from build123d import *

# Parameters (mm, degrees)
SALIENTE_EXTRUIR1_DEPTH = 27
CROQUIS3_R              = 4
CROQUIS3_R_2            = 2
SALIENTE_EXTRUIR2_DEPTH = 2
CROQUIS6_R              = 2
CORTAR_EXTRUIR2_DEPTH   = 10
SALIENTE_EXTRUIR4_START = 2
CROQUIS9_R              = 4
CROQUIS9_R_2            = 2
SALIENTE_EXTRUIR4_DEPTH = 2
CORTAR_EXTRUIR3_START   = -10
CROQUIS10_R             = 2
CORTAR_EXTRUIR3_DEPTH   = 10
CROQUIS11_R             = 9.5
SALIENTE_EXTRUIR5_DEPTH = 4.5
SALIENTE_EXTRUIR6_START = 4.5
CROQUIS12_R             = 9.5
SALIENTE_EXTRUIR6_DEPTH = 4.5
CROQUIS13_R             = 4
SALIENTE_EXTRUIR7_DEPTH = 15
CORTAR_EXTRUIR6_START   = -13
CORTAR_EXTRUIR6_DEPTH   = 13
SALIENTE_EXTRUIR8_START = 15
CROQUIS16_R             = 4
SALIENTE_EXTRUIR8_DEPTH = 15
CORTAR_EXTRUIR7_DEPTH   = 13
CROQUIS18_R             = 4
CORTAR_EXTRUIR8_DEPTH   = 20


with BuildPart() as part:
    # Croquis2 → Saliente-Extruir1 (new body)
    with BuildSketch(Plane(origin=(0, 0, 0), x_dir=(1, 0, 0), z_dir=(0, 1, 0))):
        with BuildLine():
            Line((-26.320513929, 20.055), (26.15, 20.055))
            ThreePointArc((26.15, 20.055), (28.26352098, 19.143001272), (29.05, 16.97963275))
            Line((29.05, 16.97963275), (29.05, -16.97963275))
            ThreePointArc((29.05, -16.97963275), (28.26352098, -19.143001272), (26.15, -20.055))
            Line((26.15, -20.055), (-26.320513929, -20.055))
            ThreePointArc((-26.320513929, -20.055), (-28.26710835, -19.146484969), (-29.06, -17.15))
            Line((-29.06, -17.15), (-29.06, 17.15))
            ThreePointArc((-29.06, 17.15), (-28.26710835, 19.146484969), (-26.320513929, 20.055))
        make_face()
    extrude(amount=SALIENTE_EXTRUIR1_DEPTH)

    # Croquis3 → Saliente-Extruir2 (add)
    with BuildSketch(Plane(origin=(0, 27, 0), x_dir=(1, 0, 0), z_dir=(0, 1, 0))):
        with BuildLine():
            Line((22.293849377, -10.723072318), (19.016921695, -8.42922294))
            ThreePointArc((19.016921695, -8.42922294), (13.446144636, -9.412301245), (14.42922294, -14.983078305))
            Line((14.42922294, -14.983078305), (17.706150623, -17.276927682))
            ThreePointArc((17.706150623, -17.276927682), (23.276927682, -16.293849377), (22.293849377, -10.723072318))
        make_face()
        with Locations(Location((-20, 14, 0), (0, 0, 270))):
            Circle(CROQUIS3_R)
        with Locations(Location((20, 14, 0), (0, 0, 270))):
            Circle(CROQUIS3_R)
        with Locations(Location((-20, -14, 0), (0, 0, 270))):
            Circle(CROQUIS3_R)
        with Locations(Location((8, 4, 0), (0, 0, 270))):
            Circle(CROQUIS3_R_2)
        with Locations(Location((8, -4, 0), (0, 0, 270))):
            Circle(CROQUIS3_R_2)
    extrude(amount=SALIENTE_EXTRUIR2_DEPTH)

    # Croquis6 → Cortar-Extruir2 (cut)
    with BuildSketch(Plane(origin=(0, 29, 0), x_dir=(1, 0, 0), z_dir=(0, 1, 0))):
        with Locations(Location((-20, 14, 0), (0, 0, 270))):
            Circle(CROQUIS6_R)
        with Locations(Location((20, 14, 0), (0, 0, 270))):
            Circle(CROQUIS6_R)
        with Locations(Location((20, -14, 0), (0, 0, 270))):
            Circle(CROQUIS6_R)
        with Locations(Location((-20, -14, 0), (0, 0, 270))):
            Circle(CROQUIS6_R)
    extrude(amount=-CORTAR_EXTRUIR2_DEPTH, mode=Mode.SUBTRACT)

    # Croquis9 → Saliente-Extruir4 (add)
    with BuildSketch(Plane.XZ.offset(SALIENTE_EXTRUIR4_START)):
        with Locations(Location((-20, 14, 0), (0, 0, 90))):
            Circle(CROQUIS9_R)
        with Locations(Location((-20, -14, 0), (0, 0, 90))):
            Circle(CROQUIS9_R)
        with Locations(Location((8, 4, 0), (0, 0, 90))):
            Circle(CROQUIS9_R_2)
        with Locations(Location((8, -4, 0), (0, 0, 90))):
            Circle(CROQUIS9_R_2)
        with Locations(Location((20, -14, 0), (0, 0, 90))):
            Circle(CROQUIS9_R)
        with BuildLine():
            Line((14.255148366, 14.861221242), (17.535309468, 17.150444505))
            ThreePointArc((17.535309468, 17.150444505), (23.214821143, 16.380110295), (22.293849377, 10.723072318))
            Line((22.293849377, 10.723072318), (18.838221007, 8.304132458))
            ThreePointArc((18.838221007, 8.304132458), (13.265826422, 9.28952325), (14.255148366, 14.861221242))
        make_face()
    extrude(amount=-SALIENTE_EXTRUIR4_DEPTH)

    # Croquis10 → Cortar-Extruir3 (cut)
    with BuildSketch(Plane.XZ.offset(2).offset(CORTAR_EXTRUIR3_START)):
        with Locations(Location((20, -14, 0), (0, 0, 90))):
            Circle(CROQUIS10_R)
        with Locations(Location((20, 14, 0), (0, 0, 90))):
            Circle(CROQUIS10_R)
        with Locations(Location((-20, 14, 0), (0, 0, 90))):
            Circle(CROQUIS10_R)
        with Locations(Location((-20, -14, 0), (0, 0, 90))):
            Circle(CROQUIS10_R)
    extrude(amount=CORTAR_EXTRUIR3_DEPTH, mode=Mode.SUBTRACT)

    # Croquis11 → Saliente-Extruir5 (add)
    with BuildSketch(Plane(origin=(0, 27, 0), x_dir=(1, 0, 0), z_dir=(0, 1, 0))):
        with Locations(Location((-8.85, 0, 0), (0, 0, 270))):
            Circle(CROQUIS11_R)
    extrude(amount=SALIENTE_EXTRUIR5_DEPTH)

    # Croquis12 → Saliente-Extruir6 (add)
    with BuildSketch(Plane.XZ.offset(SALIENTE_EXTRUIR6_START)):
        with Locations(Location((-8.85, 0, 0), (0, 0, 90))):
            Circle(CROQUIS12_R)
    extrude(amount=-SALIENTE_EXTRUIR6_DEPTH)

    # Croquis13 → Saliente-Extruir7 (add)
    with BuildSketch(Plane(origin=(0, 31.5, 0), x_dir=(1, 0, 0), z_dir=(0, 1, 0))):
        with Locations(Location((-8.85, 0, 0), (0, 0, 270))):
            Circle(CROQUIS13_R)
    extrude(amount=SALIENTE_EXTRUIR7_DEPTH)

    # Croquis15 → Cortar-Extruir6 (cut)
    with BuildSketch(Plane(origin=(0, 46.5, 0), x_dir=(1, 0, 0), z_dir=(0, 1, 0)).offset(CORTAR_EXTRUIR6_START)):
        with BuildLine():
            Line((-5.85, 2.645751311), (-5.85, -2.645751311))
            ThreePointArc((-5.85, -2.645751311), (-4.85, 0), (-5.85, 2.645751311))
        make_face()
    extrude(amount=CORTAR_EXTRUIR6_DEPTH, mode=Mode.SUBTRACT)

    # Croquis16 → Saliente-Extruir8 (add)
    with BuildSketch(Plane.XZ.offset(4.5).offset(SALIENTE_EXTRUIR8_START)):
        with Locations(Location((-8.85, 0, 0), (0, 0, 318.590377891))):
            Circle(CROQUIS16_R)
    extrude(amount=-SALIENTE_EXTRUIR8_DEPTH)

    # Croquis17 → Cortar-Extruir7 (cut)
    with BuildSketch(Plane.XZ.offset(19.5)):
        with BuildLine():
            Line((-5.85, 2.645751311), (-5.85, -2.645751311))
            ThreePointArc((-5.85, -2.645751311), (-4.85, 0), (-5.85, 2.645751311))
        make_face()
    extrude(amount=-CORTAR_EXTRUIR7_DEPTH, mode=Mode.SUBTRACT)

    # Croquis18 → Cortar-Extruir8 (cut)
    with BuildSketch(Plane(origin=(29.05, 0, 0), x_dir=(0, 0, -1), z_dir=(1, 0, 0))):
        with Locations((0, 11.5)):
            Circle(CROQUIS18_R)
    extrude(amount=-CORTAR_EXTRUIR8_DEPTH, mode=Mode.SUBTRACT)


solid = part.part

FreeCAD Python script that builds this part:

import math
import FreeCAD as App
import Part
import Sketcher

V = App.Vector

doc = App.newDocument("Part")
body = doc.addObject("PartDesign::Body", "Body")

sketch1 = doc.addObject("Sketcher::SketchObject", "Sketch")
body.addObject(sketch1)
sketch1.AttachmentSupport = (doc.XZ_Plane, [""])
sketch1.MapMode = "FlatFace"
sketch1.addGeometry(Part.LineSegment(V(26.15, -20.055, 0), V(-26.320514, -20.055, 0)), False)
sketch1.addGeometry(Part.ArcOfCircle(Part.Circle(V(-26.15, -17.15, 0), V(0, 0, 1), 2.91), math.radians(-180), math.radians(-93.359219)), False)
sketch1.addGeometry(Part.LineSegment(V(-29.06, -17.15, 0), V(-29.06, 17.15, 0)), False)
sketch1.addGeometry(Part.ArcOfCircle(Part.Circle(V(-26.15, 17.15, 0), V(0, 0, 1), 2.91), math.radians(93.359219), math.radians(180)), False)
sketch1.addGeometry(Part.LineSegment(V(-26.320514, 20.055, 0), V(26.15, 20.055, 0)), False)
sketch1.addGeometry(Part.ArcOfCircle(Part.Circle(V(26.15, 17.15, 0), V(0, 0, 1), 2.905), math.radians(-3.36211), math.radians(90)), False)
sketch1.addGeometry(Part.LineSegment(V(29.05, 16.979633, 0), V(29.05, -16.979633, 0)), False)
sketch1.addGeometry(Part.ArcOfCircle(Part.Circle(V(26.15, -17.15, 0), V(0, 0, 1), 2.905), math.radians(-90), math.radians(3.36211)), False)
sketch1.addConstraint(Sketcher.Constraint("Coincident", 0, 2, 1, 2))
sketch1.addConstraint(Sketcher.Constraint("Tangent", 1, 1, 2, 1))
sketch1.addConstraint(Sketcher.Constraint("Tangent", 2, 2, 3, 2))
sketch1.addConstraint(Sketcher.Constraint("Coincident", 3, 1, 4, 1))
sketch1.addConstraint(Sketcher.Constraint("Tangent", 4, 2, 5, 2))
sketch1.addConstraint(Sketcher.Constraint("Coincident", 5, 1, 6, 1))
sketch1.addConstraint(Sketcher.Constraint("Coincident", 6, 2, 7, 2))
sketch1.addConstraint(Sketcher.Constraint("Tangent", 7, 1, 0, 1))
sketch1.addConstraint(Sketcher.Constraint("Horizontal", 0))
sketch1.addConstraint(Sketcher.Constraint("Vertical", 2))
sketch1.addConstraint(Sketcher.Constraint("Horizontal", 4))
sketch1.addConstraint(Sketcher.Constraint("Vertical", 6))
sketch1.addConstraint(Sketcher.Constraint("Equal", 1, 3))
sketch1.addConstraint(Sketcher.Constraint("Equal", 5, 7))
sketch1.addConstraint(Sketcher.Constraint("Symmetric", 1, 3, 5, 3, -1, 1))
sketch1.addConstraint(Sketcher.Constraint("Symmetric", 3, 3, 7, 3, -1, 1))
sketch1.addConstraint(Sketcher.Constraint("Horizontal", 3, 3, 5, 3))
sketch1.addConstraint(Sketcher.Constraint("Radius", 1, 2.91))
sketch1.addConstraint(Sketcher.Constraint("DistanceY", 2, 1, 2, 2, 34.3))
sketch1.addConstraint(Sketcher.Constraint("Radius", 5, 2.905))
sketch1.addConstraint(Sketcher.Constraint("DistanceX", 3, 3, 5, 3, 52.3))
sketch1.addConstraint(Sketcher.Constraint("DistanceX", 5, 3, 5, 1, 2.9))
pad1 = doc.addObject("PartDesign::Pad", "Pad")
body.addObject(pad1)
pad1.Profile = sketch1
pad1.Length = 27
pad1.Reversed = True

sketch2 = doc.addObject("Sketcher::SketchObject", "Sketch001")
body.addObject(sketch2)
sketch2.AttachmentSupport = (doc.XZ_Plane, [""])
sketch2.MapMode = "FlatFace"
sketch2.AttachmentOffset = App.Placement(V(0, 0, -27), App.Rotation())
sketch2.addGeometry(Part.LineSegment(V(22.293849, 10.723072, 0), V(19.016922, 8.429223, 0)), False)
sketch2.addGeometry(Part.ArcOfCircle(Part.Circle(V(16.723072, 11.706151, 0), V(0, 0, 1), 4), math.radians(124.99202), math.radians(304.99202)), False)
sketch2.addGeometry(Part.LineSegment(V(14.429223, 14.983078, 0), V(17.706151, 17.276928, 0)), False)
sketch2.addGeometry(Part.ArcOfCircle(Part.Circle(V(20, 14, 0), V(0, 0, 1), 4), math.radians(-55.00798), math.radians(124.99202)), False)
sketch2.addGeometry(Part.Circle(V(-20, -14, 0), V(0, 0, 1), 4), False)
sketch2.addGeometry(Part.Circle(V(20, -14, 0), V(0, 0, 1), 4), False)
sketch2.addGeometry(Part.Circle(V(-20, 14, 0), V(0, 0, 1), 4), False)
sketch2.addGeometry(Part.Circle(V(8, -4, 0), V(0, 0, 1), 2), False)
sketch2.addGeometry(Part.Circle(V(8, 4, 0), V(0, 0, 1), 2), False)
sketch2.addConstraint(Sketcher.Constraint("Tangent", 0, 2, 1, 2))
sketch2.addConstraint(Sketcher.Constraint("Tangent", 1, 1, 2, 1))
sketch2.addConstraint(Sketcher.Constraint("Tangent", 2, 2, 3, 2))
sketch2.addConstraint(Sketcher.Constraint("Tangent", 3, 1, 0, 1))
sketch2.addConstraint(Sketcher.Constraint("Equal", 1, 3))
sketch2.addConstraint(Sketcher.Constraint("Equal", 3, 4))
sketch2.addConstraint(Sketcher.Constraint("Equal", 4, 5))
sketch2.addConstraint(Sketcher.Constraint("Equal", 5, 6))
sketch2.addConstraint(Sketcher.Constraint("Equal", 7, 8))
sketch2.addConstraint(Sketcher.Constraint("Symmetric", 3, 3, 4, 3, -1, 1))
sketch2.addConstraint(Sketcher.Constraint("Symmetric", 5, 3, 6, 3, -1, 1))
sketch2.addConstraint(Sketcher.Constraint("Symmetric", 4, 3, 5, 3, -2))
sketch2.addConstraint(Sketcher.Constraint("Symmetric", 7, 3, 8, 3, -1))
sketch2.addConstraint(Sketcher.Constraint("Diameter", 4, 8.0))
sketch2.addConstraint(Sketcher.Constraint("Diameter", 7, 4.0))
sketch2.addConstraint(Sketcher.Constraint("Distance", 0, 4.0))
sketch2.addConstraint(Sketcher.Constraint("DistanceX", -1, 1, 3, 3, 20.0))
sketch2.addConstraint(Sketcher.Constraint("DistanceY", -1, 1, 3, 3, 14.0))
sketch2.addConstraint(Sketcher.Constraint("DistanceX", -1, 1, 7, 3, 8.0))
sketch2.addConstraint(Sketcher.Constraint("DistanceY", 7, 3, -1, 1, 4.0))
sketch2.addConstraint(Sketcher.Constraint("DistanceX", 1, 1, 0, 2, 4.587699))
pad2 = doc.addObject("PartDesign::Pad", "Pad001")
body.addObject(pad2)
pad2.Profile = sketch2
pad2.Length = 2
pad2.Reversed = True

sketch3 = doc.addObject("Sketcher::SketchObject", "Sketch002")
body.addObject(sketch3)
sketch3.AttachmentSupport = (doc.XZ_Plane, [""])
sketch3.MapMode = "FlatFace"
sketch3.AttachmentOffset = App.Placement(V(0, 0, -29), App.Rotation())
sketch3.addGeometry(Part.Circle(V(-20, -14, 0), V(0, 0, 1), 2), False)
sketch3.addGeometry(Part.Circle(V(20, -14, 0), V(0, 0, 1), 2), False)
sketch3.addGeometry(Part.Circle(V(20, 14, 0), V(0, 0, 1), 2), False)
sketch3.addGeometry(Part.Circle(V(-20, 14, 0), V(0, 0, 1), 2), False)
sketch3.addConstraint(Sketcher.Constraint("Equal", 0, 1))
sketch3.addConstraint(Sketcher.Constraint("Equal", 1, 2))
sketch3.addConstraint(Sketcher.Constraint("Equal", 2, 3))
sketch3.addConstraint(Sketcher.Constraint("Symmetric", 0, 3, 2, 3, -1, 1))
sketch3.addConstraint(Sketcher.Constraint("Symmetric", 1, 3, 3, 3, -1, 1))
sketch3.addConstraint(Sketcher.Constraint("Symmetric", 0, 3, 1, 3, -2))
sketch3.addConstraint(Sketcher.Constraint("Diameter", 0, 4.0))
sketch3.addConstraint(Sketcher.Constraint("DistanceX", 0, 3, -1, 1, 20.0))
sketch3.addConstraint(Sketcher.Constraint("DistanceY", 0, 3, -1, 1, 14.0))
pocket1 = doc.addObject("PartDesign::Pocket", "Pocket")
body.addObject(pocket1)
pocket1.Profile = sketch3
pocket1.Length = 10
pocket1.Reversed = True

sketch4 = doc.addObject("Sketcher::SketchObject", "Sketch003")
body.addObject(sketch4)
sketch4.AttachmentSupport = (doc.XZ_Plane, [""])
sketch4.MapMode = "FlatFace"
sketch4.AttachmentOffset = App.Placement(V(0, 0, 2), App.Rotation())
sketch4.addGeometry(Part.Circle(V(-20, 14, 0), V(0, 0, 1), 4), False)
sketch4.addGeometry(Part.Circle(V(-20, -14, 0), V(0, 0, 1), 4), False)
sketch4.addGeometry(Part.Circle(V(8, 4, 0), V(0, 0, 1), 2), False)
sketch4.addGeometry(Part.Circle(V(8, -4, 0), V(0, 0, 1), 2), False)
sketch4.addGeometry(Part.Circle(V(20, -14, 0), V(0, 0, 1), 4), False)
sketch4.addGeometry(Part.LineSegment(V(17.535309, 17.150445, 0), V(14.255148, 14.861221, 0)), False)
sketch4.addGeometry(Part.ArcOfCircle(Part.Circle(V(16.544372, 11.58106, 0), V(0, 0, 1), 4), math.radians(124.911174), math.radians(304.99202)), False)
sketch4.addGeometry(Part.LineSegment(V(18.838221, 8.304132, 0), V(22.293849, 10.723072, 0)), False)
sketch4.addGeometry(Part.ArcOfCircle(Part.Circle(V(20, 14, 0), V(0, 0, 1), 4), math.radians(-55.00798), math.radians(128.037175)), False)
sketch4.addConstraint(Sketcher.Constraint("Tangent", 5, 2, 6, 1))
sketch4.addConstraint(Sketcher.Constraint("Tangent", 6, 2, 7, 1))
sketch4.addConstraint(Sketcher.Constraint("Tangent", 7, 2, 8, 1))
sketch4.addConstraint(Sketcher.Constraint("Coincident", 8, 2, 5, 1))
sketch4.addConstraint(Sketcher.Constraint("Equal", 0, 1))
sketch4.addConstraint(Sketcher.Constraint("Equal", 2, 3))
sketch4.addConstraint(Sketcher.Constraint("Equal", 1, 4))
sketch4.addConstraint(Sketcher.Constraint("Equal", 4, 6))
sketch4.addConstraint(Sketcher.Constraint("Equal", 6, 8))
sketch4.addConstraint(Sketcher.Constraint("Symmetric", 0, 3, 4, 3, -1, 1))
sketch4.addConstraint(Sketcher.Constraint("Symmetric", 1, 3, 8, 3, -1, 1))
sketch4.addConstraint(Sketcher.Constraint("Symmetric", 1, 3, 4, 3, -2))
sketch4.addConstraint(Sketcher.Constraint("Symmetric", 2, 3, 3, 3, -1))
sketch4.addConstraint(Sketcher.Constraint("Diameter", 0, 8.0))
sketch4.addConstraint(Sketcher.Constraint("Diameter", 2, 4.0))
sketch4.addConstraint(Sketcher.Constraint("Distance", 5, 4.0))
sketch4.addConstraint(Sketcher.Constraint("DistanceX", 0, 3, -1, 1, 20.0))
sketch4.addConstraint(Sketcher.Constraint("DistanceY", -1, 1, 0, 3, 14.0))
sketch4.addConstraint(Sketcher.Constraint("DistanceX", -1, 1, 2, 3, 8.0))
sketch4.addConstraint(Sketcher.Constraint("DistanceY", -1, 1, 2, 3, 4.0))
sketch4.addConstraint(Sketcher.Constraint("DistanceX", 5, 2, 7, 2, 8.038701))
sketch4.addConstraint(Sketcher.Constraint("Distance", 7, 4.218132))
pad3 = doc.addObject("PartDesign::Pad", "Pad002")
body.addObject(pad3)
pad3.Profile = sketch4
pad3.Length = 2
pad3.Reversed = True

sketch5 = doc.addObject("Sketcher::SketchObject", "Sketch004")
body.addObject(sketch5)
sketch5.AttachmentSupport = (doc.XZ_Plane, [""])
sketch5.MapMode = "FlatFace"
sketch5.AttachmentOffset = App.Placement(V(0, 0, -8), App.Rotation())
sketch5.addGeometry(Part.Circle(V(20, -14, 0), V(0, 0, 1), 2), False)
sketch5.addGeometry(Part.Circle(V(20, 14, 0), V(0, 0, 1), 2), False)
sketch5.addGeometry(Part.Circle(V(-20, 14, 0), V(0, 0, 1), 2), False)
sketch5.addGeometry(Part.Circle(V(-20, -14, 0), V(0, 0, 1), 2), False)
sketch5.addConstraint(Sketcher.Constraint("Equal", 0, 1))
sketch5.addConstraint(Sketcher.Constraint("Equal", 1, 2))
sketch5.addConstraint(Sketcher.Constraint("Equal", 2, 3))
sketch5.addConstraint(Sketcher.Constraint("Symmetric", 0, 3, 2, 3, -1, 1))
sketch5.addConstraint(Sketcher.Constraint("Symmetric", 1, 3, 3, 3, -1, 1))
sketch5.addConstraint(Sketcher.Constraint("Symmetric", 1, 3, 2, 3, -2))
sketch5.addConstraint(Sketcher.Constraint("Diameter", 0, 4.0))
sketch5.addConstraint(Sketcher.Constraint("DistanceX", -1, 1, 0, 3, 20.0))
sketch5.addConstraint(Sketcher.Constraint("DistanceY", 0, 3, -1, 1, 14.0))
pocket2 = doc.addObject("PartDesign::Pocket", "Pocket001")
body.addObject(pocket2)
pocket2.Profile = sketch5
pocket2.Length = 10
pocket2.Reversed = True

sketch6 = doc.addObject("Sketcher::SketchObject", "Sketch005")
body.addObject(sketch6)
sketch6.AttachmentSupport = (doc.XZ_Plane, [""])
sketch6.MapMode = "FlatFace"
sketch6.AttachmentOffset = App.Placement(V(0, 0, -27), App.Rotation())
sketch6.addGeometry(Part.Circle(V(-8.85, 0, 0), V(0, 0, 1), 9.5), False)
sketch6.addConstraint(Sketcher.Constraint("PointOnObject", 0, 3, -1))
sketch6.addConstraint(Sketcher.Constraint("Diameter", 0, 19.0))
sketch6.addConstraint(Sketcher.Constraint("DistanceX", 0, 3, -1, 1, 8.85))
pad4 = doc.addObject("PartDesign::Pad", "Pad003")
body.addObject(pad4)
pad4.Profile = sketch6
pad4.Length = 4.5
pad4.Reversed = True

sketch7 = doc.addObject("Sketcher::SketchObject", "Sketch006")
body.addObject(sketch7)
sketch7.AttachmentSupport = (doc.XZ_Plane, [""])
sketch7.MapMode = "FlatFace"
sketch7.AttachmentOffset = App.Placement(V(0, 0, 4.5), App.Rotation())
sketch7.addGeometry(Part.Circle(V(-8.85, 0, 0), V(0, 0, 1), 9.5), False)
sketch7.addConstraint(Sketcher.Constraint("PointOnObject", 0, 3, -1))
sketch7.addConstraint(Sketcher.Constraint("Diameter", 0, 19.0))
sketch7.addConstraint(Sketcher.Constraint("DistanceX", 0, 3, -1, 1, 8.85))
pad5 = doc.addObject("PartDesign::Pad", "Pad004")
body.addObject(pad5)
pad5.Profile = sketch7
pad5.Length = 4.5
pad5.Reversed = True

sketch8 = doc.addObject("Sketcher::SketchObject", "Sketch007")
body.addObject(sketch8)
sketch8.AttachmentSupport = (doc.XZ_Plane, [""])
sketch8.MapMode = "FlatFace"
sketch8.AttachmentOffset = App.Placement(V(0, 0, -31.5), App.Rotation())
sketch8.addGeometry(Part.Circle(V(-8.85, 0, 0), V(0, 0, 1), 4), False)
sketch8.addConstraint(Sketcher.Constraint("PointOnObject", 0, 3, -1))
sketch8.addConstraint(Sketcher.Constraint("Diameter", 0, 8.0))
sketch8.addConstraint(Sketcher.Constraint("DistanceX", 0, 3, -1, 1, 8.85))
pad6 = doc.addObject("PartDesign::Pad", "Pad005")
body.addObject(pad6)
pad6.Profile = sketch8
pad6.Length = 15
pad6.Reversed = True

sketch9 = doc.addObject("Sketcher::SketchObject", "Sketch008")
body.addObject(sketch9)
sketch9.AttachmentSupport = (doc.XZ_Plane, [""])
sketch9.MapMode = "FlatFace"
sketch9.AttachmentOffset = App.Placement(V(0, 0, -33.5), App.Rotation())
sketch9.addGeometry(Part.LineSegment(V(-5.85, -2.645751, 0), V(-5.85, 2.645751, 0)), False)
sketch9.addGeometry(Part.ArcOfCircle(Part.Circle(V(-8.85, 0, 0), V(0, 0, 1), 4), math.radians(-41.409622), math.radians(41.409622)), False)
sketch9.addConstraint(Sketcher.Constraint("Coincident", 0, 1, 1, 1))
sketch9.addConstraint(Sketcher.Constraint("Coincident", 1, 2, 0, 2))
sketch9.addConstraint(Sketcher.Constraint("Vertical", 0))
sketch9.addConstraint(Sketcher.Constraint("PointOnObject", 1, 3, -1))
sketch9.addConstraint(Sketcher.Constraint("Radius", 1, 4.0))
sketch9.addConstraint(Sketcher.Constraint("DistanceX", 1, 3, 0, 1, 3.0))
sketch9.addConstraint(Sketcher.Constraint("DistanceX", 1, 3, -1, 1, 8.85))
pocket3 = doc.addObject("PartDesign::Pocket", "Pocket002")
body.addObject(pocket3)
pocket3.Profile = sketch9
pocket3.Length = 13

sketch10 = doc.addObject("Sketcher::SketchObject", "Sketch009")
body.addObject(sketch10)
sketch10.AttachmentSupport = (doc.XZ_Plane, [""])
sketch10.MapMode = "FlatFace"
sketch10.AttachmentOffset = App.Placement(V(0, 0, 19.5), App.Rotation())
sketch10.addGeometry(Part.Circle(V(-8.85, 0, 0), V(0, 0, 1), 4), False)
sketch10.addConstraint(Sketcher.Constraint("PointOnObject", 0, 3, -1))
sketch10.addConstraint(Sketcher.Constraint("Diameter", 0, 8.0))
sketch10.addConstraint(Sketcher.Constraint("DistanceX", 0, 3, -1, 1, 8.85))
pad7 = doc.addObject("PartDesign::Pad", "Pad006")
body.addObject(pad7)
pad7.Profile = sketch10
pad7.Length = 15
pad7.Reversed = True

sketch11 = doc.addObject("Sketcher::SketchObject", "Sketch010")
body.addObject(sketch11)
sketch11.AttachmentSupport = (doc.XZ_Plane, [""])
sketch11.MapMode = "FlatFace"
sketch11.AttachmentOffset = App.Placement(V(0, 0, 19.5), App.Rotation())
sketch11.addGeometry(Part.LineSegment(V(-5.85, 2.645751, 0), V(-5.85, -2.645751, 0)), False)
sketch11.addGeometry(Part.ArcOfCircle(Part.Circle(V(-8.85, 0, 0), V(0, 0, 1), 4), math.radians(-41.409622), math.radians(41.409622)), False)
sketch11.addConstraint(Sketcher.Constraint("Coincident", 0, 1, 1, 2))
sketch11.addConstraint(Sketcher.Constraint("Coincident", 1, 1, 0, 2))
sketch11.addConstraint(Sketcher.Constraint("Vertical", 0))
sketch11.addConstraint(Sketcher.Constraint("PointOnObject", 1, 3, -1))
sketch11.addConstraint(Sketcher.Constraint("Radius", 1, 4.0))
sketch11.addConstraint(Sketcher.Constraint("DistanceX", 1, 3, 0, 1, 3.0))
sketch11.addConstraint(Sketcher.Constraint("DistanceX", 1, 3, -1, 1, 8.85))
pocket4 = doc.addObject("PartDesign::Pocket", "Pocket003")
body.addObject(pocket4)
pocket4.Profile = sketch11
pocket4.Length = 13

sketch12 = doc.addObject("Sketcher::SketchObject", "Sketch011")
body.addObject(sketch12)
sketch12.AttachmentSupport = (doc.YZ_Plane, [""])
sketch12.MapMode = "FlatFace"
sketch12.AttachmentOffset = App.Placement(V(0, 0, 29.05), App.Rotation())
sketch12.addGeometry(Part.Circle(V(11.5, 0, 0), V(0, 0, 1), 4), False)
sketch12.addConstraint(Sketcher.Constraint("PointOnObject", 0, 3, -1))
sketch12.addConstraint(Sketcher.Constraint("Diameter", 0, 8.0))
sketch12.addConstraint(Sketcher.Constraint("DistanceX", -1, 1, 0, 3, 11.5))
pocket5 = doc.addObject("PartDesign::Pocket", "Pocket004")
body.addObject(pocket5)
pocket5.Profile = sketch12
pocket5.Length = 20

doc.recompute()
